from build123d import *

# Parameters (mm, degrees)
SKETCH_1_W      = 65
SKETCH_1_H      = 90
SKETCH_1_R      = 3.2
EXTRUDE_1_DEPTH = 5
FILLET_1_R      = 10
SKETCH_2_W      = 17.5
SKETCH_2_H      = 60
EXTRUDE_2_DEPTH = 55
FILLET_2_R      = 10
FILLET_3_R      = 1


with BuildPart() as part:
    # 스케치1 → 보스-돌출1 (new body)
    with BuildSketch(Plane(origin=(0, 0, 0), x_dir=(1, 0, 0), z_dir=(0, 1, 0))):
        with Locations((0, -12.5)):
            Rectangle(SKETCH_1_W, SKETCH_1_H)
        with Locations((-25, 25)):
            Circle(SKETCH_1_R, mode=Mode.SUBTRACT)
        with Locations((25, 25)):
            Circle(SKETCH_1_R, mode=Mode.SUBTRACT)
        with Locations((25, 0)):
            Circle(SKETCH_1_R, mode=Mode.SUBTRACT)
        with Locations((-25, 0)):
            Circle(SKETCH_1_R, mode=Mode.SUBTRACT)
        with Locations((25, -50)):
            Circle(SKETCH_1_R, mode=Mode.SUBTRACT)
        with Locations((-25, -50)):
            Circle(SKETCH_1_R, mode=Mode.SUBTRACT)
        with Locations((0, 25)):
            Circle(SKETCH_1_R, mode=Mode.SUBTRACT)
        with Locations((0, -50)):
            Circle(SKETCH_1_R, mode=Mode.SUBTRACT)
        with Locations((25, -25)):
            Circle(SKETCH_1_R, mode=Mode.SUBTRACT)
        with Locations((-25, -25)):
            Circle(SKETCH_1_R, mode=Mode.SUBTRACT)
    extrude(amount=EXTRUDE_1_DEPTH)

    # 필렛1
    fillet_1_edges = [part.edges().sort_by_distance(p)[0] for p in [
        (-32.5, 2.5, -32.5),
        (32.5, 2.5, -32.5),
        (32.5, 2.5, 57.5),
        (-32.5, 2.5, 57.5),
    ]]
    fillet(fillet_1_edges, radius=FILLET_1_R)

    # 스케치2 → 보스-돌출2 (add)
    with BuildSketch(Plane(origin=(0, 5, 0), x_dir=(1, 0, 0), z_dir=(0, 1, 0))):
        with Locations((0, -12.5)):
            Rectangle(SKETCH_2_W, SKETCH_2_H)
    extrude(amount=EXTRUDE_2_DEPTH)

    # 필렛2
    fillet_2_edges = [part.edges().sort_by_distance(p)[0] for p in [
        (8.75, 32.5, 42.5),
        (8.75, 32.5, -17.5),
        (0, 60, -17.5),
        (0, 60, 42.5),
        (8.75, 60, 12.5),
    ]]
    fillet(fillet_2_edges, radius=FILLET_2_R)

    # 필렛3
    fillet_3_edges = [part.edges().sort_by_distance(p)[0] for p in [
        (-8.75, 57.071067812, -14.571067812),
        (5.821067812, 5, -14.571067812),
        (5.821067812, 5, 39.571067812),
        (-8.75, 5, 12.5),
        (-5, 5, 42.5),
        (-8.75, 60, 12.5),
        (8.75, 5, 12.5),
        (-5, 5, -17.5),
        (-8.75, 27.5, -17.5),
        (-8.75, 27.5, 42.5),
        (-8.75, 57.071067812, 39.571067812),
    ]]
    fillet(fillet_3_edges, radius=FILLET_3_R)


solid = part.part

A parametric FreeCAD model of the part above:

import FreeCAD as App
import Part
import Sketcher

V = App.Vector
Q = App.Units.Quantity


def edges_at(feature, points):
    """Names of the edges that pass closest to the given points."""
    edges = feature.Shape.Edges
    near = lambda p: min(range(len(edges)), key=lambda i: edges[i].distToShape(Part.Vertex(*p))[0])
    return sorted({f"Edge{near(p) + 1}" for p in points})


def add_polygon(sketch, points):
    """Adds a closed chain of lines whose ends are joined by coincident constraints."""
    first, n = sketch.GeometryCount, len(points)
    for a, b in zip(points, points[1:] + points[:1]):
        sketch.addGeometry(Part.LineSegment(App.Vector(*a, 0), App.Vector(*b, 0)), False)
    for i in range(n):
        sketch.addConstraint(Sketcher.Constraint("Coincident", first + i, 2, first + (i + 1) % n, 1))

doc = App.newDocument("Part")
body = doc.addObject("PartDesign::Body", "Body")

# Sketch on XZ plane
sketch1 = doc.addObject("Sketcher::SketchObject", "Sketch")
body.addObject(sketch1)
sketch1.AttachmentSupport = (doc.XZ_Plane, [""])
sketch1.MapMode = "FlatFace"
add_polygon(sketch1, [(-32.5, -32.5), (-32.5, 57.5), (32.5, 57.5), (32.5, -32.5)])  # lines 0-3
sketch1.addGeometry(Part.Circle(V(-25, 50, 0), V(0, 0, 1), 3.2), False)  # 4
sketch1.addGeometry(Part.Circle(V(-25, 25, 0), V(0, 0, 1), 3.2), False)  # 5
sketch1.addGeometry(Part.Circle(V(0, 50, 0), V(0, 0, 1), 3.2), False)  # 6
sketch1.addGeometry(Part.Circle(V(25, 50, 0), V(0, 0, 1), 3.2), False)  # 7
sketch1.addGeometry(Part.Circle(V(25, 25, 0), V(0, 0, 1), 3.2), False)  # 8
sketch1.addGeometry(Part.Circle(V(-25, 0, 0), V(0, 0, 1), 3.2), False)  # 9
sketch1.addGeometry(Part.Circle(V(-25, -25, 0), V(0, 0, 1), 3.2), False)  # 10
sketch1.addGeometry(Part.Circle(V(25, 0, 0), V(0, 0, 1), 3.2), False)  # 11
sketch1.addGeometry(Part.Circle(V(0, -25, 0), V(0, 0, 1), 3.2), False)  # 12
sketch1.addGeometry(Part.Circle(V(25, -25, 0), V(0, 0, 1), 3.2), False)  # 13
sketch1.addConstraint([
    Sketcher.Constraint("Vertical", 0),
    Sketcher.Constraint("Horizontal", 1),
    Sketcher.Constraint("Vertical", 2),
    Sketcher.Constraint("Horizontal", 3),
    Sketcher.Constraint("Equal", 4, 5),
    Sketcher.Constraint("Equal", 5, 6),
    Sketcher.Constraint("Equal", 6, 7),
    Sketcher.Constraint("Equal", 7, 8),
    Sketcher.Constraint("Equal", 8, 9),
    Sketcher.Constraint("Equal", 9, 10),
    Sketcher.Constraint("Equal", 10, 11),
    Sketcher.Constraint("Equal", 11, 12),
    Sketcher.Constraint("Equal", 12, 13),
    Sketcher.Constraint("Symmetric", 8, 3, 10, 3, -1, 1),
    Sketcher.Constraint("Symmetric", 9, 3, 11, 3, -1, 1),
    Sketcher.Constraint("Symmetric", 5, 3, 13, 3, -1, 1),
    Sketcher.Constraint("Symmetric", 4, 3, 7, 3, -2),
    Sketcher.Constraint("Symmetric", 5, 3, 8, 3, -2),
    Sketcher.Constraint("PointOnObject", 6, 3, -2),
    Sketcher.Constraint("PointOnObject", 9, 3, -1),
    Sketcher.Constraint("PointOnObject", 12, 3, -2),
    Sketcher.Constraint("Horizontal", 4, 3, 6, 3),
    Sketcher.Constraint("Horizontal", 10, 3, 12, 3),
    Sketcher.Constraint("Vertical", 4, 3, 5, 3),
    Sketcher.Constraint("Vertical", 5, 3, 9, 3),
    Sketcher.Constraint("Diameter", 4, Q("6.4 mm")),
    Sketcher.Constraint("DistanceX", 1, 1, 1, 2, Q("65 mm")),
    Sketcher.Constraint("DistanceY", 0, 1, 0, 2, Q("90 mm")),
    Sketcher.Constraint("DistanceX", 4, 3, -1, 1, Q("25 mm")),
    Sketcher.Constraint("DistanceY", -1, 1, 4, 3, Q("50 mm")),
    Sketcher.Constraint("DistanceY", -1, 1, 5, 3, Q("25 mm")),
    Sketcher.Constraint("DistanceX", 0, 2, -1, 1, Q("32.5 mm")),
    Sketcher.Constraint("DistanceY", -1, 1, 0, 2, Q("57.5 mm")),
])
pad1 = doc.addObject("PartDesign::Pad", "Pad")
body.addObject(pad1)
pad1.Profile = sketch1
pad1.Length = 5
pad1.Reversed = True
doc.recompute()

fillet = doc.addObject("PartDesign::Fillet", "Fillet")
body.addObject(fillet)
fillet.Base = (pad1, edges_at(pad1, [
    (-32.5, 2.5, -32.5),
    (32.5, 2.5, -32.5),
    (32.5, 2.5, 57.5),
    (-32.5, 2.5, 57.5),
]))
fillet.Radius = 10

# Sketch on XZ plane
sketch2 = doc.addObject("Sketcher::SketchObject", "Sketch001")
body.addObject(sketch2)
sketch2.AttachmentSupport = (doc.XZ_Plane, [""])
sketch2.MapMode = "FlatFace"
sketch2.AttachmentOffset = App.Placement(V(0, 0, -5), App.Rotation())
add_polygon(sketch2, [(-8.75, -17.5), (-8.75, 42.5), (8.75, 42.5), (8.75, -17.5)])  # lines 0-3
sketch2.addConstraint([
    Sketcher.Constraint("Vertical", 0),
    Sketcher.Constraint("Horizontal", 1),
    Sketcher.Constraint("Vertical", 2),
    Sketcher.Constraint("Horizontal", 3),
    Sketcher.Constraint("DistanceY", 0, 1, 0, 2, Q("60 mm")),
    Sketcher.Constraint("DistanceX", 1, 1, 1, 2, Q("17.5 mm")),
    Sketcher.Constraint("DistanceY", -1, 1, 0, 2, Q("42.5 mm")),
    Sketcher.Constraint("DistanceX", 0, 2, -1, 1, Q("8.75 mm")),
])
pad2 = doc.addObject("PartDesign::Pad", "Pad001")
body.addObject(pad2)
pad2.Profile = sketch2
pad2.Length = 55
pad2.Reversed = True
doc.recompute()

fillet2 = doc.addObject("PartDesign::Fillet", "Fillet001")
body.addObject(fillet2)
fillet2.Base = (pad2, edges_at(pad2, [
    (8.75, 32.5, 42.5),
    (8.75, 32.5, -17.5),
    (0, 60, -17.5),
    (0, 60, 42.5),
    (8.75, 60, 12.5),
]))
fillet2.Radius = 10
doc.recompute()

fillet3 = doc.addObject("PartDesign::Fillet", "Fillet002")
body.addObject(fillet3)
fillet3.Base = (fillet2, edges_at(fillet2, [
    (-8.75, 57.071, -14.571),
    (5.821, 5, -14.571),
    (5.821, 5, 39.571),
    (-8.75, 5, 12.5),
    (-5, 5, 42.5),
    (-8.75, 60, 12.5),
    (8.75, 5, 12.5),
    (-5, 5, -17.5),
    (-8.75, 27.5, -17.5),
    (-8.75, 27.5, 42.5),
    (-8.75, 57.071, 39.571),
]))
fillet3.Radius = 1

doc.recompute()
